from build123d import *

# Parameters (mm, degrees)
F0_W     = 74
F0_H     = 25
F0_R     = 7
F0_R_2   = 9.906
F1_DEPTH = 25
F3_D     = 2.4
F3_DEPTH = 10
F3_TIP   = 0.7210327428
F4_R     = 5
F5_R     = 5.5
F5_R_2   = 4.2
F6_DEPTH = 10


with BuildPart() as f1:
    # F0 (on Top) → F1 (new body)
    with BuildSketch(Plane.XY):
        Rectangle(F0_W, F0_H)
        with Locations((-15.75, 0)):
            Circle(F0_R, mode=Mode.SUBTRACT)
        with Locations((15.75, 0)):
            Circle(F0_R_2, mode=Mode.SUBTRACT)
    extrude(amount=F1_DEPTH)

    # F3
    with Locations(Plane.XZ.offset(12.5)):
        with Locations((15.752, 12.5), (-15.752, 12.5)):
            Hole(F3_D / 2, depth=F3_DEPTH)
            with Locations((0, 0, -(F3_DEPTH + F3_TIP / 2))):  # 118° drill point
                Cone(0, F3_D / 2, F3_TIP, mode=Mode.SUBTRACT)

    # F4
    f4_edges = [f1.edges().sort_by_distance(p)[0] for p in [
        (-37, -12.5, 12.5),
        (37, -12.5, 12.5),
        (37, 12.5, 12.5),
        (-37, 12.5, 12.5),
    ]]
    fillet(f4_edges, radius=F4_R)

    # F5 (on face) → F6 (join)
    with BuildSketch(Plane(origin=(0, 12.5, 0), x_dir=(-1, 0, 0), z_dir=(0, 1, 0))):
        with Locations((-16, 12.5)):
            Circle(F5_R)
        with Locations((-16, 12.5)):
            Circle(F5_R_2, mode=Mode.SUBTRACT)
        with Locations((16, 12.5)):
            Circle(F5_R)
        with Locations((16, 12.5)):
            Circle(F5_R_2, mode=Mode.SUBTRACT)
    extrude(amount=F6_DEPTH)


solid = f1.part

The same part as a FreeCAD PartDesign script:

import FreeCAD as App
import Part
import Sketcher


def edges_at(feature, points):
    """Names of the edges that pass closest to the given points."""
    edges = feature.Shape.Edges
    near = lambda p: min(range(len(edges)), key=lambda i: edges[i].distToShape(Part.Vertex(*p))[0])
    return sorted({f"Edge{near(p) + 1}" for p in points})

doc = App.newDocument("Part")
params = doc.addObject("Spreadsheet::Sheet", "Params")
for row, (alias, value) in enumerate([
    ("sketch1_diameter", "14 mm"),
    ("sketch1_width", "74 mm"),
    ("sketch1_height", "25 mm"),
    ("pad1_length", "25 mm"),
    ("sketch2_diameter", "2.4 mm"),
    ("hole_diameter", "2.4 mm"),
    ("hole_depth", "10 mm"),
    ("fillet_radius", "5 mm"),
    ("sketch3_diameter", "11 mm"),
    ("sketch3_diameter2", "8.4 mm"),
    ("pad2_length", "10 mm"),
], start=1):
    params.set(f"A{row}", alias)
    params.set(f"B{row}", "=" + value)
    params.setAlias(f"B{row}", alias)

body = doc.addObject("PartDesign::Body", "Body")

sketch1 = body.newObject("Sketcher::SketchObject", "Sketch")
sketch1.AttachmentSupport = (doc.getObject("XY_Plane"), [""])
sketch1.MapMode = "FlatFace"
sketch1.addGeometry([
    Part.LineSegment(App.Vector(-37, 12, 0), App.Vector(-37, -12, 0)),
    Part.LineSegment(App.Vector(-37, -12, 0), App.Vector(37, -12, 0)),
    Part.LineSegment(App.Vector(37, -12, 0), App.Vector(37, 12, 0)),
    Part.LineSegment(App.Vector(37, 12, 0), App.Vector(-37, 12, 0)),
    Part.Circle(App.Vector(-16, 0, 0), App.Vector(0, 0, 1), 7),
    Part.Circle(App.Vector(16, 0, 0), App.Vector(0, 0, 1), 10),
], False)
sketch1.addConstraint([
    Sketcher.Constraint("Coincident", 0, 2, 1, 1),
    Sketcher.Constraint("Coincident", 1, 2, 2, 1),
    Sketcher.Constraint("Coincident", 2, 2, 3, 1),
    Sketcher.Constraint("Coincident", 3, 2, 0, 1),
    Sketcher.Constraint("Vertical", 0),
    Sketcher.Constraint("Horizontal", 1),
    Sketcher.Constraint("Vertical", 2),
    Sketcher.Constraint("Horizontal", 3),
    Sketcher.Constraint("Symmetric", 4, 3, 5, 3, -1, 1),
    Sketcher.Constraint("Symmetric", 0, 2, 2, 2, -1, 1),
    Sketcher.Constraint("PointOnObject", 4, 3, -1),
    Sketcher.Constraint("Diameter", 4, 14.0),
    Sketcher.Constraint("DistanceX", 1, 1, 1, 2, 74.0),
    Sketcher.Constraint("DistanceY", 0, 2, 0, 1, 25.0),
    Sketcher.Constraint("Diameter", 5, 19.812),
    Sketcher.Constraint("DistanceX", 4, 3, 5, 3, 31.5),
])
sketch1.setExpression("Constraints[11]", "Params.sketch1_diameter")
sketch1.setExpression("Constraints[12]", "Params.sketch1_width")
sketch1.setExpression("Constraints[13]", "Params.sketch1_height")
pad1 = body.newObject("PartDesign::Pad", "Pad")
pad1.Profile = sketch1
pad1.setExpression("Length", "Params.pad1_length")

sketch2 = body.newObject("Sketcher::SketchObject", "Sketch001")
sketch2.AttachmentSupport = (doc.getObject("XZ_Plane"), [""])
sketch2.MapMode = "FlatFace"
sketch2.AttachmentOffset = App.Placement(App.Vector(0, 0, 12.5), App.Rotation())
sketch2.addGeometry([
    Part.Circle(App.Vector(15.8, 12.5, 0), App.Vector(0, 0, 1), 1.2),
    Part.Circle(App.Vector(-15.8, 12.5, 0), App.Vector(0, 0, 1), 1.2),
], False)
sketch2.addConstraint([
    Sketcher.Constraint("Equal", 0, 1),
    Sketcher.Constraint("Symmetric", 0, 3, 1, 3, -2),
    Sketcher.Constraint("Diameter", 0, 2.4),
    Sketcher.Constraint("DistanceY", -1, 1, 0, 3, 12.5),
    Sketcher.Constraint("DistanceX", -1, 1, 0, 3, 15.752),
])
sketch2.setExpression("Constraints[2]", "Params.sketch2_diameter")
doc.recompute()
hole = body.newObject("PartDesign::Hole", "Hole")
hole.Profile = sketch2
hole.ThreadType = "None"
hole.setExpression("Diameter", "Params.hole_diameter")
hole.DepthType = "Dimension"
hole.setExpression("Depth", "Params.hole_depth")
hole.DrillPoint = "Angled"
hole.DrillPointAngle = 118
doc.recompute()

fillet = body.newObject("PartDesign::Fillet", "Fillet")
fillet.Base = (hole, edges_at(hole, [
    (-37, -12.5, 12.5),
    (37, -12.5, 12.5),
    (37, 12.5, 12.5),
    (-37, 12.5, 12.5),
]))
fillet.setExpression("Radius", "Params.fillet_radius")

sketch3 = body.newObject("Sketcher::SketchObject", "Sketch002")
sketch3.AttachmentSupport = (doc.getObject("XZ_Plane"), [""])
sketch3.MapMode = "FlatFace"
sketch3.AttachmentOffset = App.Placement(App.Vector(0, 0, -12.5), App.Rotation())
sketch3.addGeometry([
    Part.Circle(App.Vector(16, 12.5, 0), App.Vector(0, 0, 1), 5.5),
    Part.Circle(App.Vector(16, 12.5, 0), App.Vector(0, 0, 1), 4.2),
    Part.Circle(App.Vector(-16, 12.5, 0), App.Vector(0, 0, 1), 5.5),
    Part.Circle(App.Vector(-16, 12.5, 0), App.Vector(0, 0, 1), 4.2),
], False)
sketch3.addConstraint([
    Sketcher.Constraint("Coincident", 1, 3, 0, 3),
    Sketcher.Constraint("Coincident", 3, 3, 2, 3),
    Sketcher.Constraint("Equal", 0, 2),
    Sketcher.Constraint("Equal", 1, 3),
    Sketcher.Constraint("Symmetric", 0, 3, 2, 3, -2),
    Sketcher.Constraint("Diameter", 0, 11.0),
    Sketcher.Constraint("Diameter", 1, 8.4),
    Sketcher.Constraint("DistanceX", -1, 1, 0, 3, 16.0),
    Sketcher.Constraint("DistanceY", -1, 1, 0, 3, 12.5),
])
sketch3.setExpression("Constraints[5]", "Params.sketch3_diameter")
sketch3.setExpression("Constraints[6]", "Params.sketch3_diameter2")
pad2 = body.newObject("PartDesign::Pad", "Pad001")
pad2.Profile = sketch3
pad2.setExpression("Length", "Params.pad2_length")
pad2.Reversed = True

doc.recompute()
